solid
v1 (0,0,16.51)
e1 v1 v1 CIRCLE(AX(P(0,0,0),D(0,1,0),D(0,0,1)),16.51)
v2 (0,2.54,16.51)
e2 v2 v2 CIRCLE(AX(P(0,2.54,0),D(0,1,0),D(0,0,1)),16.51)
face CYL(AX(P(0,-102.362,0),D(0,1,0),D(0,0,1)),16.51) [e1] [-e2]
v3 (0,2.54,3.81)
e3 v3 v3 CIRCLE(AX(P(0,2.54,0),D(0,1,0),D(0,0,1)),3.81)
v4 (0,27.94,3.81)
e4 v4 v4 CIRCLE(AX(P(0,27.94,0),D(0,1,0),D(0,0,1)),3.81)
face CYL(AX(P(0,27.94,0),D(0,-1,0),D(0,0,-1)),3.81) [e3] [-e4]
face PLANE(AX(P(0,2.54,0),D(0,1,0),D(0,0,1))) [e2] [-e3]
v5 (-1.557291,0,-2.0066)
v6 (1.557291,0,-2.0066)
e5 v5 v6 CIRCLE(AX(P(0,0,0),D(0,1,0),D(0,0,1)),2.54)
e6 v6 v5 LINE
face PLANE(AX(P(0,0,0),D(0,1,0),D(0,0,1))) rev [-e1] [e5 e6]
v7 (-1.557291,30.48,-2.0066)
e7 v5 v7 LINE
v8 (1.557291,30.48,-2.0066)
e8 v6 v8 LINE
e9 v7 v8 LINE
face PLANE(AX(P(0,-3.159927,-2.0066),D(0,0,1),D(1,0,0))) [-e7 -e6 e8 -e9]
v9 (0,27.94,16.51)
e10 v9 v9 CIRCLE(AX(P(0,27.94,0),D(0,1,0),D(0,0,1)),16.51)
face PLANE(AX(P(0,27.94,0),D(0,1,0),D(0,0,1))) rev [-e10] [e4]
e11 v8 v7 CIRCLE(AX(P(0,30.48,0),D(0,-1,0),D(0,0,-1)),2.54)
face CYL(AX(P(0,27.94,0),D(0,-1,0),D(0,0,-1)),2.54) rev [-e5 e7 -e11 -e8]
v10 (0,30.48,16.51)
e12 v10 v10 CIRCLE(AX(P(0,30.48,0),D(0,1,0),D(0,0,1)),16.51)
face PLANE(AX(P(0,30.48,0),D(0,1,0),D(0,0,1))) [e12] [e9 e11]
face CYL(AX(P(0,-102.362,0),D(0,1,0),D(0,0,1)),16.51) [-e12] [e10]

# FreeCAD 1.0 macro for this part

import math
import FreeCAD as App
import Part
import Sketcher
from FreeCAD import Vector
Q = App.Units.Quantity

doc = App.newDocument("Part")
body = doc.addObject("PartDesign::Body", "Body")

sketch1 = doc.addObject("Sketcher::SketchObject", "Sketch")
body.addObject(sketch1)
sketch1.AttachmentSupport = (doc.XZ_Plane, [""])
sketch1.MapMode = "FlatFace"
sketch1.addGeometry(Part.Circle(Vector(0, 0, 0), Vector(0, 0, 1), 33), False)
sketch1.addConstraint([
    Sketcher.Constraint("Coincident", 0, 3, -1, 1),
    Sketcher.Constraint("Diameter", 0, Q("2.6 in")),
])
pad1 = doc.addObject("PartDesign::Pad", "Pad")
body.addObject(pad1)
pad1.Profile = sketch1
pad1.Length = Q("0.1 in")
pad1.Reversed = True

sketch2 = doc.addObject("Sketcher::SketchObject", "Sketch001")
body.addObject(sketch2)
sketch2.AttachmentSupport = (doc.XZ_Plane, [""])
sketch2.MapMode = "FlatFace"
sketch2.AttachmentOffset = App.Placement(Vector(0, 0, -0.1 * 25.4), App.Rotation())
sketch2.addGeometry([
    Part.Circle(Vector(0, 0, 0), Vector(0, 0, 1), 3.8),
    Part.Circle(Vector(0, 0, 0), Vector(0, 0, 1), 2.5),
], False)
sketch2.addConstraint([
    Sketcher.Constraint("Coincident", 0, 3, -1, 1),
    Sketcher.Constraint("Coincident", 1, 3, -1, 1),
    Sketcher.Constraint("Diameter", 0, Q("0.3 in")),
    Sketcher.Constraint("Diameter", 1, Q("0.2 in")),
])
pad2 = doc.addObject("PartDesign::Pad", "Pad001")
body.addObject(pad2)
pad2.Profile = sketch2
pad2.Length = Q("1 in")
pad2.Reversed = True

sketch3 = doc.addObject("Sketcher::SketchObject", "Sketch002")
body.addObject(sketch3)
sketch3.AttachmentSupport = (doc.XZ_Plane, [""])
sketch3.MapMode = "FlatFace"
sketch3.AttachmentOffset = App.Placement(Vector(0, 0, -0.1 * 25.4), App.Rotation())
sketch3.addGeometry(Part.Circle(Vector(0, 0, 0), Vector(0, 0, 1), 2.5), False)
sketch3.addConstraint([
    Sketcher.Constraint("Coincident", 0, 3, -1, 1),
    Sketcher.Constraint("Diameter", 0, Q("0.2 in")),
])
pocket1 = doc.addObject("PartDesign::Pocket", "Pocket")
body.addObject(pocket1)
pocket1.Profile = sketch3
pocket1.Length = Q("1 in")
pocket1.Reversed = True

sketch4 = doc.addObject("Sketcher::SketchObject", "Sketch003")
body.addObject(sketch4)
sketch4.AttachmentSupport = (doc.XZ_Plane, [""])
sketch4.MapMode = "FlatFace"
sketch4.AttachmentOffset = App.Placement(Vector(0, 0, -1.1 * 25.4), App.Rotation())
sketch4.addGeometry(Part.Circle(Vector(0, 0, 0), Vector(0, 0, 1), 33), False)
sketch4.addConstraint([
    Sketcher.Constraint("Coincident", 0, 3, -1, 1),
    Sketcher.Constraint("Diameter", 0, Q("2.6 in")),
])
pad3 = doc.addObject("PartDesign::Pad", "Pad002")
body.addObject(pad3)
pad3.Profile = sketch4
pad3.Length = Q("0.1 in")
pad3.Reversed = True

sketch5 = doc.addObject("Sketcher::SketchObject", "Sketch004")
body.addObject(sketch5)
sketch5.AttachmentSupport = (doc.XZ_Plane, [""])
sketch5.MapMode = "FlatFace"
sketch5.AttachmentOffset = App.Placement(Vector(0, 0, -1.1 * 25.4), App.Rotation())
sketch5.addGeometry(Part.Circle(Vector(0, 0, 0), Vector(0, 0, 1), 2.5), False)
sketch5.addConstraint([
    Sketcher.Constraint("Coincident", 0, 3, -1, 1),
    Sketcher.Constraint("Diameter", 0, Q("0.2 in")),
])
pocket2 = doc.addObject("PartDesign::Pocket", "Pocket001")
body.addObject(pocket2)
pocket2.Profile = sketch5
pocket2.Length = Q("0.1 in")

sketch6 = doc.addObject("Sketcher::SketchObject", "Sketch005")
body.addObject(sketch6)
sketch6.AttachmentSupport = (doc.XZ_Plane, [""])
sketch6.MapMode = "FlatFace"
sketch6.AttachmentOffset = App.Placement(Vector(0, 0, -1.2 * 25.4), App.Rotation())
sketch6.addGeometry([
    Part.LineSegment(Vector(-1.6, -2, 0), Vector(1.6, -2, 0)),
    Part.ArcOfCircle(Part.Circle(Vector(0, 0, 0), Vector(0, 0, 1), 2.5), math.radians(-128), math.radians(-52)),
], False)
sketch6.addConstraint([
    Sketcher.Constraint("Coincident", 0, 1, 1, 1),
    Sketcher.Constraint("Coincident", 1, 2, 0, 2),
    Sketcher.Constraint("Horizontal", 0),
    Sketcher.Constraint("Coincident", 1, 3, -1, 1),
    Sketcher.Constraint("Radius", 1, Q("0.1 in")),
    Sketcher.Constraint("DistanceY", 0, 1, -1, 1, Q("0.079 in")),
])
pad4 = doc.addObject("PartDesign::Pad", "Pad003")
body.addObject(pad4)
pad4.Profile = sketch6
pad4.Length = Q("1.2 in")

sketch7 = doc.addObject("Sketcher::SketchObject", "Sketch006")
body.addObject(sketch7)
sketch7.AttachmentSupport = (doc.XZ_Plane, [""])
sketch7.MapMode = "FlatFace"
sketch7.AttachmentOffset = App.Placement(Vector(0, 0, -1.2 * 25.4), App.Rotation())
sketch7.addGeometry([
    Part.Circle(Vector(0, 0, 0), Vector(0, 0, 1), 33),
    Part.Circle(Vector(0, 0, 0), Vector(0, 0, 1), 17),
], False)
sketch7.addConstraint([
    Sketcher.Constraint("Coincident", 0, 3, -1, 1),
    Sketcher.Constraint("Coincident", 1, 3, -1, 1),
    Sketcher.Constraint("Diameter", 0, Q("2.6 in")),
    Sketcher.Constraint("Diameter", 1, Q("1.3 in")),
])
pocket3 = doc.addObject("PartDesign::Pocket", "Pocket002")
body.addObject(pocket3)
pocket3.Profile = sketch7
pocket3.Length = Q("5.23 in")
pocket3.Reversed = True

doc.recompute()
